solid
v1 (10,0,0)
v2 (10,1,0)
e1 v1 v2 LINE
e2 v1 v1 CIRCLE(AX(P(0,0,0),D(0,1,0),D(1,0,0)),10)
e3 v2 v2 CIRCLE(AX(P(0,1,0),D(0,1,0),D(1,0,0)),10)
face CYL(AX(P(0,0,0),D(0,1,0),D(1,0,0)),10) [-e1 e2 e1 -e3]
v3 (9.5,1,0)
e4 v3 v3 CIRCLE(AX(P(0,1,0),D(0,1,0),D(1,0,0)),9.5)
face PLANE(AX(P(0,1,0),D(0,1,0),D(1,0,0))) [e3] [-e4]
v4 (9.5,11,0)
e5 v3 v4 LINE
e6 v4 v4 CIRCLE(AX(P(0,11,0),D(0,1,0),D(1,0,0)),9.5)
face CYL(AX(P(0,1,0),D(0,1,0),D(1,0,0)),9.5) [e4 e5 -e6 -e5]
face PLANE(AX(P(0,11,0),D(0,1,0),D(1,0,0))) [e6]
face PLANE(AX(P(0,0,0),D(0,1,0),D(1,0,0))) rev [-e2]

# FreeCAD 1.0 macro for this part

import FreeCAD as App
import Part
import Sketcher

V = App.Vector


def add_polygon(sketch, points):
    """Adds a closed chain of lines whose ends are joined by coincident constraints."""
    first, n = sketch.GeometryCount, len(points)
    for a, b in zip(points, points[1:] + points[:1]):
        sketch.addGeometry(Part.LineSegment(App.Vector(*a, 0), App.Vector(*b, 0)), False)
    for i in range(n):
        sketch.addConstraint(Sketcher.Constraint("Coincident", first + i, 2, first + (i + 1) % n, 1))

doc = App.newDocument("Part")
body = doc.addObject("PartDesign::Body", "Body")

sketch1 = body.newObject("Sketcher::SketchObject", "Sketch")
sketch1.AttachmentSupport = (doc.getObject("XY_Plane"), [""])
sketch1.MapMode = "FlatFace"
add_polygon(sketch1, [(0, 11), (0, 0), (10, 0), (10, 1), (9.5, 1), (9.5, 11)])
sketch1.addConstraint([
    Sketcher.Constraint("Vertical", 0),
    Sketcher.Constraint("Horizontal", 1),
    Sketcher.Constraint("Vertical", 2),
    Sketcher.Constraint("Horizontal", 3),
    Sketcher.Constraint("Vertical", 4),
    Sketcher.Constraint("Horizontal", 5),
    Sketcher.Constraint("Coincident", 0, 2, -1, 1),
    Sketcher.Constraint("Equal", 1, 4),
    Sketcher.Constraint("DistanceX", 1, 1, 1, 2, 10.0),
    Sketcher.Constraint("DistanceY", 0, 2, 0, 1, 11.0),
    Sketcher.Constraint("DistanceX", 3, 2, 3, 1, 0.5),
])
revolution = body.newObject("PartDesign::Revolution", "Revolution")
revolution.Profile = sketch1
revolution.ReferenceAxis = (sketch1, ["V_Axis"])
revolution.Angle = 360

doc.recompute()
